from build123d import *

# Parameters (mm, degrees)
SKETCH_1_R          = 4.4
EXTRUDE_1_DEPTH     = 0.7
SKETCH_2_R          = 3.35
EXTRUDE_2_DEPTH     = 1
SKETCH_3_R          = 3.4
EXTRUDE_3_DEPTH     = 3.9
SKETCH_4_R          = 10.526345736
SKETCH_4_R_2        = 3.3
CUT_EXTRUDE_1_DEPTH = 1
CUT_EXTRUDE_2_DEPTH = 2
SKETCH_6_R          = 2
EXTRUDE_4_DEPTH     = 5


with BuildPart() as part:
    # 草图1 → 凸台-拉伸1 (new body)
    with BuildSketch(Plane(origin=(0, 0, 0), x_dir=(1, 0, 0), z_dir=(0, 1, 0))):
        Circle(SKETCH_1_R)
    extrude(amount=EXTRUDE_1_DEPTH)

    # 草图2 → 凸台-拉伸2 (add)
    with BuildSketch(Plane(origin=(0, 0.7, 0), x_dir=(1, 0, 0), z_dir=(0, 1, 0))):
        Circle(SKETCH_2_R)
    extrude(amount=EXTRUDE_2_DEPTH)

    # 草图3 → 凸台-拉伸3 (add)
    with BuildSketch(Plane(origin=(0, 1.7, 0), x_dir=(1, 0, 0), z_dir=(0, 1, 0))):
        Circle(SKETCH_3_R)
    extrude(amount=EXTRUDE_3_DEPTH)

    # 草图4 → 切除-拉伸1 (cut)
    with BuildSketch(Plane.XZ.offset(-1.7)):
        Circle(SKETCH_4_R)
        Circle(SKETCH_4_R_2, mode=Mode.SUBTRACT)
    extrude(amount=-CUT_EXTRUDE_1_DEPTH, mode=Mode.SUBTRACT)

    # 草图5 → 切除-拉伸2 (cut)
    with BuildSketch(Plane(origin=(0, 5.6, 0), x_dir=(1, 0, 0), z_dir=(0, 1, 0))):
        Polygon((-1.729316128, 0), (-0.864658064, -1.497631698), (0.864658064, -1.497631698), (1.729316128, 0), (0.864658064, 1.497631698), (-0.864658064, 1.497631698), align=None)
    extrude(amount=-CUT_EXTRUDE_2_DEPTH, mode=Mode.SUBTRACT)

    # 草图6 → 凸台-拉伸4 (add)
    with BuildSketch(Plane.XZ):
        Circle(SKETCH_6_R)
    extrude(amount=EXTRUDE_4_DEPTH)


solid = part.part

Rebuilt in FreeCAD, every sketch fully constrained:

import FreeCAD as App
import Part
import Sketcher

V = App.Vector
Q = App.Units.Quantity


def add_polygon(sketch, points):
    """Adds a closed chain of lines whose ends are joined by coincident constraints."""
    first, n = sketch.GeometryCount, len(points)
    for a, b in zip(points, points[1:] + points[:1]):
        sketch.addGeometry(Part.LineSegment(App.Vector(*a, 0), App.Vector(*b, 0)), False)
    for i in range(n):
        sketch.addConstraint(Sketcher.Constraint("Coincident", first + i, 2, first + (i + 1) % n, 1))

doc = App.newDocument("Part")
params = doc.addObject("Spreadsheet::Sheet", "Params")
for row, (alias, value) in enumerate([
    ("sketch1_diameter", "8.8 mm"),
    ("pad1_length", "0.7 mm"),
    ("sketch2_diameter", "6.7 mm"),
    ("pad2_length", "1 mm"),
    ("sketch3_diameter", "6.8 mm"),
    ("pad3_length", "3.9 mm"),
    ("sketch4_diameter", "6.6 mm"),
    ("pocket1_length", "1 mm"),
    ("pocket2_length", "2 mm"),
    ("sketch6_diameter", "4 mm"),
    ("pad4_length", "5 mm"),
], start=1):
    params.set(f"A{row}", alias)
    params.set(f"B{row}", "=" + value)
    params.setAlias(f"B{row}", alias)

body = doc.addObject("PartDesign::Body", "Body")

# Sketch on XZ plane
sketch1 = doc.addObject("Sketcher::SketchObject", "Sketch")
body.addObject(sketch1)
sketch1.AttachmentSupport = (doc.XZ_Plane, [""])
sketch1.MapMode = "FlatFace"
sketch1.addGeometry(Part.Circle(V(0, 0, 0), V(0, 0, 1), 4.4), False)
sketch1.addConstraint(Sketcher.Constraint("Coincident", 0, 3, -1, 1))
sketch1.addConstraint(Sketcher.Constraint("Diameter", 0, Q("8.8 mm")))
sketch1.setExpression("Constraints[1]", "Params.sketch1_diameter")
pad1 = doc.addObject("PartDesign::Pad", "Pad")
body.addObject(pad1)
pad1.Profile = sketch1
pad1.setExpression("Length", "Params.pad1_length")
pad1.Reversed = True

# Sketch on XZ plane
sketch2 = doc.addObject("Sketcher::SketchObject", "Sketch001")
body.addObject(sketch2)
sketch2.AttachmentSupport = (doc.XZ_Plane, [""])
sketch2.MapMode = "FlatFace"
sketch2.AttachmentOffset = App.Placement(V(0, 0, -0.7), App.Rotation())
sketch2.addGeometry(Part.Circle(V(0, 0, 0), V(0, 0, 1), 3.4), False)
sketch2.addConstraint(Sketcher.Constraint("Coincident", 0, 3, -1, 1))
sketch2.addConstraint(Sketcher.Constraint("Diameter", 0, Q("6.7 mm")))
sketch2.setExpression("Constraints[1]", "Params.sketch2_diameter")
pad2 = doc.addObject("PartDesign::Pad", "Pad001")
body.addObject(pad2)
pad2.Profile = sketch2
pad2.setExpression("Length", "Params.pad2_length")
pad2.Reversed = True

# Sketch on XZ plane
sketch3 = doc.addObject("Sketcher::SketchObject", "Sketch002")
body.addObject(sketch3)
sketch3.AttachmentSupport = (doc.XZ_Plane, [""])
sketch3.MapMode = "FlatFace"
sketch3.AttachmentOffset = App.Placement(V(0, 0, -1.7), App.Rotation())
sketch3.addGeometry(Part.Circle(V(0, 0, 0), V(0, 0, 1), 3.4), False)
sketch3.addConstraint(Sketcher.Constraint("Coincident", 0, 3, -1, 1))
sketch3.addConstraint(Sketcher.Constraint("Diameter", 0, Q("6.8 mm")))
sketch3.setExpression("Constraints[1]", "Params.sketch3_diameter")
pad3 = doc.addObject("PartDesign::Pad", "Pad002")
body.addObject(pad3)
pad3.Profile = sketch3
pad3.setExpression("Length", "Params.pad3_length")
pad3.Reversed = True

# Sketch on XZ plane
sketch4 = doc.addObject("Sketcher::SketchObject", "Sketch003")
body.addObject(sketch4)
sketch4.AttachmentSupport = (doc.XZ_Plane, [""])
sketch4.MapMode = "FlatFace"
sketch4.AttachmentOffset = App.Placement(V(0, 0, -1.7), App.Rotation())
sketch4.addGeometry(Part.Circle(V(0, 0, 0), V(0, 0, 1), 10.5), False)
sketch4.addGeometry(Part.Circle(V(0, 0, 0), V(0, 0, 1), 3.3), False)
sketch4.addConstraint(Sketcher.Constraint("Coincident", 0, 3, -1, 1))
sketch4.addConstraint(Sketcher.Constraint("Coincident", 1, 3, -1, 1))
sketch4.addConstraint(Sketcher.Constraint("Diameter", 1, Q("6.6 mm")))
sketch4.addConstraint(Sketcher.Constraint("Diameter", 0, Q("21.052691 mm")))
sketch4.setExpression("Constraints[2]", "Params.sketch4_diameter")
pocket1 = doc.addObject("PartDesign::Pocket", "Pocket")
body.addObject(pocket1)
pocket1.Profile = sketch4
pocket1.setExpression("Length", "Params.pocket1_length")

# Sketch on XZ plane
sketch5 = doc.addObject("Sketcher::SketchObject", "Sketch004")
body.addObject(sketch5)
sketch5.AttachmentSupport = (doc.XZ_Plane, [""])
sketch5.MapMode = "FlatFace"
sketch5.AttachmentOffset = App.Placement(V(0, 0, -5.6), App.Rotation())
add_polygon(sketch5, [(-1.7, 0), (-0.9, 1.5), (0.9, 1.5), (1.7, 0), (0.9, -1.5), (-0.9, -1.5)])  # lines 0-5
sketch5.addConstraint(Sketcher.Constraint("Horizontal", 1))
sketch5.addConstraint(Sketcher.Constraint("Horizontal", 4))
sketch5.addConstraint(Sketcher.Constraint("Symmetric", 0, 2, 3, 2, -1, 1))
sketch5.addConstraint(Sketcher.Constraint("Symmetric", 2, 2, 5, 2, -1, 1))
sketch5.addConstraint(Sketcher.Constraint("PointOnObject", 2, 2, -1))
sketch5.addConstraint(Sketcher.Constraint("Parallel", 2, 5))
sketch5.addConstraint(Sketcher.Constraint("Vertical", 1, 2, 3, 2))
sketch5.addConstraint(Sketcher.Constraint("Angle", 0, Q("60 deg")))
sketch5.addConstraint(Sketcher.Constraint("DistanceX", 1, 1, 1, 2, Q("1.729316 mm")))
sketch5.addConstraint(Sketcher.Constraint("DistanceY", -1, 1, 0, 2, Q("1.497632 mm")))
pocket2 = doc.addObject("PartDesign::Pocket", "Pocket001")
body.addObject(pocket2)
pocket2.Profile = sketch5
pocket2.setExpression("Length", "Params.pocket2_length")
pocket2.Reversed = True

# Sketch on XZ plane
sketch6 = doc.addObject("Sketcher::SketchObject", "Sketch005")
body.addObject(sketch6)
sketch6.AttachmentSupport = (doc.XZ_Plane, [""])
sketch6.MapMode = "FlatFace"
sketch6.addGeometry(Part.Circle(V(0, 0, 0), V(0, 0, 1), 2), False)
sketch6.addConstraint(Sketcher.Constraint("Coincident", 0, 3, -1, 1))
sketch6.addConstraint(Sketcher.Constraint("Diameter", 0, Q("4 mm")))
sketch6.setExpression("Constraints[1]", "Params.sketch6_diameter")
pad4 = doc.addObject("PartDesign::Pad", "Pad003")
body.addObject(pad4)
pad4.Profile = sketch6
pad4.setExpression("Length", "Params.pad4_length")

doc.recompute()
